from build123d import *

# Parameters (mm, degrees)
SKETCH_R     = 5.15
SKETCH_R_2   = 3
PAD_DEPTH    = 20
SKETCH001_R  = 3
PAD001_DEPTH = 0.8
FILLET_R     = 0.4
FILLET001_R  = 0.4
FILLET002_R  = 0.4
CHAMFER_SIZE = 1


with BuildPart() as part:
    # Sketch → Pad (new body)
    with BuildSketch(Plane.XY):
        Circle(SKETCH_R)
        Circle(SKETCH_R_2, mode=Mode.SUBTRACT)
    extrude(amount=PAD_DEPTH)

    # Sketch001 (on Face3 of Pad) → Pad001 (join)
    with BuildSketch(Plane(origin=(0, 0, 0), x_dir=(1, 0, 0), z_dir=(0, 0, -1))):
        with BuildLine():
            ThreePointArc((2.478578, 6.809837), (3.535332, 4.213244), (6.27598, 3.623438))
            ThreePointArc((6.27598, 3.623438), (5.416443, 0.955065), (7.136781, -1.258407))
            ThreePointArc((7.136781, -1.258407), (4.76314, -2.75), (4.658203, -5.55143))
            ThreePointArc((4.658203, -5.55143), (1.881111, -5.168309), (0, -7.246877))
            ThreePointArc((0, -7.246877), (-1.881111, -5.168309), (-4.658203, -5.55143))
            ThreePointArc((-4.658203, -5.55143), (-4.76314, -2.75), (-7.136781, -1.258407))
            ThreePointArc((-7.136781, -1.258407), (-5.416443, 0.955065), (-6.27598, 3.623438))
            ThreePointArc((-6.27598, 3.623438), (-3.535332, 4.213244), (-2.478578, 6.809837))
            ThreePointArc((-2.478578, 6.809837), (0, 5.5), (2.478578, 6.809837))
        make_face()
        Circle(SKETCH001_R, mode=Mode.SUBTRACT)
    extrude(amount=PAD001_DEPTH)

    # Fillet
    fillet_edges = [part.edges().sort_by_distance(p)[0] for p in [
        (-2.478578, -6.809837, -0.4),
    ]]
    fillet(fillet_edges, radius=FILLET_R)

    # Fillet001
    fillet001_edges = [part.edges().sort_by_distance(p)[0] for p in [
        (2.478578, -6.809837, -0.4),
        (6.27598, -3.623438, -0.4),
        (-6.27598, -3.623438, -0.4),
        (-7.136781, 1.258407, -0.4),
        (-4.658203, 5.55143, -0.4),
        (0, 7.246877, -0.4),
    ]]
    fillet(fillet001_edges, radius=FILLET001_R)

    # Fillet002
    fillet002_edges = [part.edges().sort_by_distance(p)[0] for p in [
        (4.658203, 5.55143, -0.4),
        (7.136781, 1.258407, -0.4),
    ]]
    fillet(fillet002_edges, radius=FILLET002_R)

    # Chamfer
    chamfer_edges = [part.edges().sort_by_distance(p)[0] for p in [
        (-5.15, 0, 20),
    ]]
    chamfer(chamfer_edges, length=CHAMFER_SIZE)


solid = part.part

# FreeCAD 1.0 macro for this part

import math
import FreeCAD as App
import Part
import Sketcher

V = App.Vector


def edges_at(feature, points):
    """Names of the edges that pass closest to the given points."""
    edges = feature.Shape.Edges
    near = lambda p: min(range(len(edges)), key=lambda i: edges[i].distToShape(Part.Vertex(*p))[0])
    return sorted({f"Edge{near(p) + 1}" for p in points})

doc = App.newDocument("Part")
params = doc.addObject("Spreadsheet::Sheet", "Params")
for row, (alias, value) in enumerate([
    ("sketch1_diameter", "6 mm"),
    ("sketch1_diameter2", "10.3 mm"),
    ("pad1_length", "20 mm"),
    ("sketch2_diameter", "6 mm"),
    ("pad2_length", "0.8 mm"),
    ("fillet_radius", "0.4 mm"),
    ("fillet2_radius", "0.4 mm"),
    ("fillet3_radius", "0.4 mm"),
    ("chamfer_size", "1 mm"),
], start=1):
    params.set(f"A{row}", alias)
    params.set(f"B{row}", "=" + value)
    params.setAlias(f"B{row}", alias)

body = doc.addObject("PartDesign::Body", "Body")

sketch1 = body.newObject("Sketcher::SketchObject", "Sketch")
sketch1.AttachmentSupport = (doc.getObject("XY_Plane"), [""])
sketch1.MapMode = "FlatFace"
sketch1.addGeometry([
    Part.Circle(V(0, 0, 0), V(0, 0, 1), 5.2),
    Part.Circle(V(0, 0, 0), V(0, 0, 1), 3),
], False)
sketch1.addConstraint([
    Sketcher.Constraint("Coincident", 0, 3, -1, 1),
    Sketcher.Constraint("Coincident", 1, 3, -1, 1),
    Sketcher.Constraint("Diameter", 1, 6.0),
    Sketcher.Constraint("Diameter", 0, 10.3),
])
sketch1.setExpression("Constraints[2]", "Params.sketch1_diameter")
sketch1.setExpression("Constraints[3]", "Params.sketch1_diameter2")
pad1 = body.newObject("PartDesign::Pad", "Pad")
pad1.Profile = sketch1
pad1.setExpression("Length", "Params.pad1_length")

sketch2 = body.newObject("Sketcher::SketchObject", "Sketch001")
sketch2.AttachmentSupport = (doc.getObject("XY_Plane"), [""])
sketch2.MapMode = "FlatFace"
sketch2.addGeometry([
    Part.ArcOfCircle(Part.Circle(V(5.5, -6.5, 0), V(0, 0, 1), 3), math.radians(74), math.radians(186)),
    Part.ArcOfCircle(Part.Circle(V(0, -8.5, 0), V(0, 0, 1), 3), math.radians(34), math.radians(146)),
    Part.ArcOfCircle(Part.Circle(V(-5.5, -6.5, 0), V(0, 0, 1), 3), math.radians(-6), math.radians(106)),
    Part.ArcOfCircle(Part.Circle(V(-8.4, -1.5, 0), V(0, 0, 1), 3), math.radians(-46), math.radians(66)),
    Part.ArcOfCircle(Part.Circle(V(-7.4, 4.3, 0), V(0, 0, 1), 3), math.radians(-86), math.radians(26)),
    Part.ArcOfCircle(Part.Circle(V(-2.9, 8, 0), V(0, 0, 1), 3), math.radians(-126), math.radians(-14)),
    Part.ArcOfCircle(Part.Circle(V(2.9, 8, 0), V(0, 0, 1), 3), math.radians(-166), math.radians(-54)),
    Part.ArcOfCircle(Part.Circle(V(7.4, 4.3, 0), V(0, 0, 1), 3), math.radians(154), math.radians(266)),
    Part.ArcOfCircle(Part.Circle(V(8.4, -1.5, 0), V(0, 0, 1), 3), math.radians(114), math.radians(226)),
    Part.Circle(V(0, 0, 0), V(0, 0, 1), 3),
], False)
sketch2.addConstraint([
    Sketcher.Constraint("Coincident", 0, 2, 1, 1),
    Sketcher.Constraint("Coincident", 1, 2, 2, 1),
    Sketcher.Constraint("Coincident", 2, 2, 3, 1),
    Sketcher.Constraint("Coincident", 3, 2, 4, 1),
    Sketcher.Constraint("Coincident", 4, 2, 5, 1),
    Sketcher.Constraint("Coincident", 5, 2, 6, 1),
    Sketcher.Constraint("Coincident", 6, 2, 7, 1),
    Sketcher.Constraint("Coincident", 7, 2, 8, 1),
    Sketcher.Constraint("Coincident", 8, 2, 0, 1),
    Sketcher.Constraint("Coincident", 9, 3, -1, 1),
    Sketcher.Constraint("Equal", 0, 1),
    Sketcher.Constraint("Equal", 1, 2),
    Sketcher.Constraint("Equal", 2, 3),
    Sketcher.Constraint("Equal", 3, 4),
    Sketcher.Constraint("Equal", 4, 5),
    Sketcher.Constraint("Equal", 5, 6),
    Sketcher.Constraint("Equal", 6, 7),
    Sketcher.Constraint("Equal", 7, 8),
    Sketcher.Constraint("Equal", 8, 9),
    Sketcher.Constraint("Symmetric", 0, 3, 2, 3, -2),
    Sketcher.Constraint("Symmetric", 5, 3, 6, 3, -2),
    Sketcher.Constraint("Symmetric", 4, 3, 7, 3, -2),
    Sketcher.Constraint("Symmetric", 3, 3, 8, 3, -2),
    Sketcher.Constraint("PointOnObject", 1, 3, -2),
    Sketcher.Constraint("Diameter", 9, 6.0),
    Sketcher.Constraint("DistanceY", 1, 3, -1, 1, 8.5),
    Sketcher.Constraint("DistanceY", -1, 1, 4, 3, 4.25),
    Sketcher.Constraint("DistanceX", 2, 2, 1, 2, 3.797402),
    Sketcher.Constraint("DistanceY", 1, 2, 2, 2, 3.186399),
    Sketcher.Constraint("DistanceX", 3, 2, 2, 2, 0.860801),
    Sketcher.Constraint("DistanceY", 3, 3, -1, 1, 1.476009),
    Sketcher.Constraint("DistanceX", 5, 3, -1, 1, 2.907171),
    Sketcher.Constraint("DistanceX", -1, 1, 0, 2, 2.478578),
    Sketcher.Constraint("DistanceY", -1, 1, 4, 2, 5.55143),
])
sketch2.setExpression("Constraints[24]", "Params.sketch2_diameter")
pad2 = body.newObject("PartDesign::Pad", "Pad001")
pad2.Profile = sketch2
pad2.setExpression("Length", "Params.pad2_length")
pad2.Reversed = True
doc.recompute()

fillet = body.newObject("PartDesign::Fillet", "Fillet")
fillet.Base = (pad2, edges_at(pad2, [(-2.479, -6.81, -0.4)]))
fillet.setExpression("Radius", "Params.fillet_radius")
doc.recompute()

fillet2 = body.newObject("PartDesign::Fillet", "Fillet001")
fillet2.Base = (fillet, edges_at(fillet, [
    (2.479, -6.81, -0.4),
    (6.276, -3.623, -0.4),
    (-6.276, -3.623, -0.4),
    (-7.137, 1.258, -0.4),
    (-4.658, 5.551, -0.4),
    (0, 7.247, -0.4),
]))
fillet2.setExpression("Radius", "Params.fillet2_radius")
doc.recompute()

fillet3 = body.newObject("PartDesign::Fillet", "Fillet002")
fillet3.Base = (fillet2, edges_at(fillet2, [(4.658, 5.551, -0.4), (7.137, 1.258, -0.4)]))
fillet3.setExpression("Radius", "Params.fillet3_radius")
doc.recompute()

chamfer = body.newObject("PartDesign::Chamfer", "Chamfer")
chamfer.Base = (fillet3, edges_at(fillet3, [(-5.15, 0, 20)]))
chamfer.setExpression("Size", "Params.chamfer_size")

doc.recompute()
